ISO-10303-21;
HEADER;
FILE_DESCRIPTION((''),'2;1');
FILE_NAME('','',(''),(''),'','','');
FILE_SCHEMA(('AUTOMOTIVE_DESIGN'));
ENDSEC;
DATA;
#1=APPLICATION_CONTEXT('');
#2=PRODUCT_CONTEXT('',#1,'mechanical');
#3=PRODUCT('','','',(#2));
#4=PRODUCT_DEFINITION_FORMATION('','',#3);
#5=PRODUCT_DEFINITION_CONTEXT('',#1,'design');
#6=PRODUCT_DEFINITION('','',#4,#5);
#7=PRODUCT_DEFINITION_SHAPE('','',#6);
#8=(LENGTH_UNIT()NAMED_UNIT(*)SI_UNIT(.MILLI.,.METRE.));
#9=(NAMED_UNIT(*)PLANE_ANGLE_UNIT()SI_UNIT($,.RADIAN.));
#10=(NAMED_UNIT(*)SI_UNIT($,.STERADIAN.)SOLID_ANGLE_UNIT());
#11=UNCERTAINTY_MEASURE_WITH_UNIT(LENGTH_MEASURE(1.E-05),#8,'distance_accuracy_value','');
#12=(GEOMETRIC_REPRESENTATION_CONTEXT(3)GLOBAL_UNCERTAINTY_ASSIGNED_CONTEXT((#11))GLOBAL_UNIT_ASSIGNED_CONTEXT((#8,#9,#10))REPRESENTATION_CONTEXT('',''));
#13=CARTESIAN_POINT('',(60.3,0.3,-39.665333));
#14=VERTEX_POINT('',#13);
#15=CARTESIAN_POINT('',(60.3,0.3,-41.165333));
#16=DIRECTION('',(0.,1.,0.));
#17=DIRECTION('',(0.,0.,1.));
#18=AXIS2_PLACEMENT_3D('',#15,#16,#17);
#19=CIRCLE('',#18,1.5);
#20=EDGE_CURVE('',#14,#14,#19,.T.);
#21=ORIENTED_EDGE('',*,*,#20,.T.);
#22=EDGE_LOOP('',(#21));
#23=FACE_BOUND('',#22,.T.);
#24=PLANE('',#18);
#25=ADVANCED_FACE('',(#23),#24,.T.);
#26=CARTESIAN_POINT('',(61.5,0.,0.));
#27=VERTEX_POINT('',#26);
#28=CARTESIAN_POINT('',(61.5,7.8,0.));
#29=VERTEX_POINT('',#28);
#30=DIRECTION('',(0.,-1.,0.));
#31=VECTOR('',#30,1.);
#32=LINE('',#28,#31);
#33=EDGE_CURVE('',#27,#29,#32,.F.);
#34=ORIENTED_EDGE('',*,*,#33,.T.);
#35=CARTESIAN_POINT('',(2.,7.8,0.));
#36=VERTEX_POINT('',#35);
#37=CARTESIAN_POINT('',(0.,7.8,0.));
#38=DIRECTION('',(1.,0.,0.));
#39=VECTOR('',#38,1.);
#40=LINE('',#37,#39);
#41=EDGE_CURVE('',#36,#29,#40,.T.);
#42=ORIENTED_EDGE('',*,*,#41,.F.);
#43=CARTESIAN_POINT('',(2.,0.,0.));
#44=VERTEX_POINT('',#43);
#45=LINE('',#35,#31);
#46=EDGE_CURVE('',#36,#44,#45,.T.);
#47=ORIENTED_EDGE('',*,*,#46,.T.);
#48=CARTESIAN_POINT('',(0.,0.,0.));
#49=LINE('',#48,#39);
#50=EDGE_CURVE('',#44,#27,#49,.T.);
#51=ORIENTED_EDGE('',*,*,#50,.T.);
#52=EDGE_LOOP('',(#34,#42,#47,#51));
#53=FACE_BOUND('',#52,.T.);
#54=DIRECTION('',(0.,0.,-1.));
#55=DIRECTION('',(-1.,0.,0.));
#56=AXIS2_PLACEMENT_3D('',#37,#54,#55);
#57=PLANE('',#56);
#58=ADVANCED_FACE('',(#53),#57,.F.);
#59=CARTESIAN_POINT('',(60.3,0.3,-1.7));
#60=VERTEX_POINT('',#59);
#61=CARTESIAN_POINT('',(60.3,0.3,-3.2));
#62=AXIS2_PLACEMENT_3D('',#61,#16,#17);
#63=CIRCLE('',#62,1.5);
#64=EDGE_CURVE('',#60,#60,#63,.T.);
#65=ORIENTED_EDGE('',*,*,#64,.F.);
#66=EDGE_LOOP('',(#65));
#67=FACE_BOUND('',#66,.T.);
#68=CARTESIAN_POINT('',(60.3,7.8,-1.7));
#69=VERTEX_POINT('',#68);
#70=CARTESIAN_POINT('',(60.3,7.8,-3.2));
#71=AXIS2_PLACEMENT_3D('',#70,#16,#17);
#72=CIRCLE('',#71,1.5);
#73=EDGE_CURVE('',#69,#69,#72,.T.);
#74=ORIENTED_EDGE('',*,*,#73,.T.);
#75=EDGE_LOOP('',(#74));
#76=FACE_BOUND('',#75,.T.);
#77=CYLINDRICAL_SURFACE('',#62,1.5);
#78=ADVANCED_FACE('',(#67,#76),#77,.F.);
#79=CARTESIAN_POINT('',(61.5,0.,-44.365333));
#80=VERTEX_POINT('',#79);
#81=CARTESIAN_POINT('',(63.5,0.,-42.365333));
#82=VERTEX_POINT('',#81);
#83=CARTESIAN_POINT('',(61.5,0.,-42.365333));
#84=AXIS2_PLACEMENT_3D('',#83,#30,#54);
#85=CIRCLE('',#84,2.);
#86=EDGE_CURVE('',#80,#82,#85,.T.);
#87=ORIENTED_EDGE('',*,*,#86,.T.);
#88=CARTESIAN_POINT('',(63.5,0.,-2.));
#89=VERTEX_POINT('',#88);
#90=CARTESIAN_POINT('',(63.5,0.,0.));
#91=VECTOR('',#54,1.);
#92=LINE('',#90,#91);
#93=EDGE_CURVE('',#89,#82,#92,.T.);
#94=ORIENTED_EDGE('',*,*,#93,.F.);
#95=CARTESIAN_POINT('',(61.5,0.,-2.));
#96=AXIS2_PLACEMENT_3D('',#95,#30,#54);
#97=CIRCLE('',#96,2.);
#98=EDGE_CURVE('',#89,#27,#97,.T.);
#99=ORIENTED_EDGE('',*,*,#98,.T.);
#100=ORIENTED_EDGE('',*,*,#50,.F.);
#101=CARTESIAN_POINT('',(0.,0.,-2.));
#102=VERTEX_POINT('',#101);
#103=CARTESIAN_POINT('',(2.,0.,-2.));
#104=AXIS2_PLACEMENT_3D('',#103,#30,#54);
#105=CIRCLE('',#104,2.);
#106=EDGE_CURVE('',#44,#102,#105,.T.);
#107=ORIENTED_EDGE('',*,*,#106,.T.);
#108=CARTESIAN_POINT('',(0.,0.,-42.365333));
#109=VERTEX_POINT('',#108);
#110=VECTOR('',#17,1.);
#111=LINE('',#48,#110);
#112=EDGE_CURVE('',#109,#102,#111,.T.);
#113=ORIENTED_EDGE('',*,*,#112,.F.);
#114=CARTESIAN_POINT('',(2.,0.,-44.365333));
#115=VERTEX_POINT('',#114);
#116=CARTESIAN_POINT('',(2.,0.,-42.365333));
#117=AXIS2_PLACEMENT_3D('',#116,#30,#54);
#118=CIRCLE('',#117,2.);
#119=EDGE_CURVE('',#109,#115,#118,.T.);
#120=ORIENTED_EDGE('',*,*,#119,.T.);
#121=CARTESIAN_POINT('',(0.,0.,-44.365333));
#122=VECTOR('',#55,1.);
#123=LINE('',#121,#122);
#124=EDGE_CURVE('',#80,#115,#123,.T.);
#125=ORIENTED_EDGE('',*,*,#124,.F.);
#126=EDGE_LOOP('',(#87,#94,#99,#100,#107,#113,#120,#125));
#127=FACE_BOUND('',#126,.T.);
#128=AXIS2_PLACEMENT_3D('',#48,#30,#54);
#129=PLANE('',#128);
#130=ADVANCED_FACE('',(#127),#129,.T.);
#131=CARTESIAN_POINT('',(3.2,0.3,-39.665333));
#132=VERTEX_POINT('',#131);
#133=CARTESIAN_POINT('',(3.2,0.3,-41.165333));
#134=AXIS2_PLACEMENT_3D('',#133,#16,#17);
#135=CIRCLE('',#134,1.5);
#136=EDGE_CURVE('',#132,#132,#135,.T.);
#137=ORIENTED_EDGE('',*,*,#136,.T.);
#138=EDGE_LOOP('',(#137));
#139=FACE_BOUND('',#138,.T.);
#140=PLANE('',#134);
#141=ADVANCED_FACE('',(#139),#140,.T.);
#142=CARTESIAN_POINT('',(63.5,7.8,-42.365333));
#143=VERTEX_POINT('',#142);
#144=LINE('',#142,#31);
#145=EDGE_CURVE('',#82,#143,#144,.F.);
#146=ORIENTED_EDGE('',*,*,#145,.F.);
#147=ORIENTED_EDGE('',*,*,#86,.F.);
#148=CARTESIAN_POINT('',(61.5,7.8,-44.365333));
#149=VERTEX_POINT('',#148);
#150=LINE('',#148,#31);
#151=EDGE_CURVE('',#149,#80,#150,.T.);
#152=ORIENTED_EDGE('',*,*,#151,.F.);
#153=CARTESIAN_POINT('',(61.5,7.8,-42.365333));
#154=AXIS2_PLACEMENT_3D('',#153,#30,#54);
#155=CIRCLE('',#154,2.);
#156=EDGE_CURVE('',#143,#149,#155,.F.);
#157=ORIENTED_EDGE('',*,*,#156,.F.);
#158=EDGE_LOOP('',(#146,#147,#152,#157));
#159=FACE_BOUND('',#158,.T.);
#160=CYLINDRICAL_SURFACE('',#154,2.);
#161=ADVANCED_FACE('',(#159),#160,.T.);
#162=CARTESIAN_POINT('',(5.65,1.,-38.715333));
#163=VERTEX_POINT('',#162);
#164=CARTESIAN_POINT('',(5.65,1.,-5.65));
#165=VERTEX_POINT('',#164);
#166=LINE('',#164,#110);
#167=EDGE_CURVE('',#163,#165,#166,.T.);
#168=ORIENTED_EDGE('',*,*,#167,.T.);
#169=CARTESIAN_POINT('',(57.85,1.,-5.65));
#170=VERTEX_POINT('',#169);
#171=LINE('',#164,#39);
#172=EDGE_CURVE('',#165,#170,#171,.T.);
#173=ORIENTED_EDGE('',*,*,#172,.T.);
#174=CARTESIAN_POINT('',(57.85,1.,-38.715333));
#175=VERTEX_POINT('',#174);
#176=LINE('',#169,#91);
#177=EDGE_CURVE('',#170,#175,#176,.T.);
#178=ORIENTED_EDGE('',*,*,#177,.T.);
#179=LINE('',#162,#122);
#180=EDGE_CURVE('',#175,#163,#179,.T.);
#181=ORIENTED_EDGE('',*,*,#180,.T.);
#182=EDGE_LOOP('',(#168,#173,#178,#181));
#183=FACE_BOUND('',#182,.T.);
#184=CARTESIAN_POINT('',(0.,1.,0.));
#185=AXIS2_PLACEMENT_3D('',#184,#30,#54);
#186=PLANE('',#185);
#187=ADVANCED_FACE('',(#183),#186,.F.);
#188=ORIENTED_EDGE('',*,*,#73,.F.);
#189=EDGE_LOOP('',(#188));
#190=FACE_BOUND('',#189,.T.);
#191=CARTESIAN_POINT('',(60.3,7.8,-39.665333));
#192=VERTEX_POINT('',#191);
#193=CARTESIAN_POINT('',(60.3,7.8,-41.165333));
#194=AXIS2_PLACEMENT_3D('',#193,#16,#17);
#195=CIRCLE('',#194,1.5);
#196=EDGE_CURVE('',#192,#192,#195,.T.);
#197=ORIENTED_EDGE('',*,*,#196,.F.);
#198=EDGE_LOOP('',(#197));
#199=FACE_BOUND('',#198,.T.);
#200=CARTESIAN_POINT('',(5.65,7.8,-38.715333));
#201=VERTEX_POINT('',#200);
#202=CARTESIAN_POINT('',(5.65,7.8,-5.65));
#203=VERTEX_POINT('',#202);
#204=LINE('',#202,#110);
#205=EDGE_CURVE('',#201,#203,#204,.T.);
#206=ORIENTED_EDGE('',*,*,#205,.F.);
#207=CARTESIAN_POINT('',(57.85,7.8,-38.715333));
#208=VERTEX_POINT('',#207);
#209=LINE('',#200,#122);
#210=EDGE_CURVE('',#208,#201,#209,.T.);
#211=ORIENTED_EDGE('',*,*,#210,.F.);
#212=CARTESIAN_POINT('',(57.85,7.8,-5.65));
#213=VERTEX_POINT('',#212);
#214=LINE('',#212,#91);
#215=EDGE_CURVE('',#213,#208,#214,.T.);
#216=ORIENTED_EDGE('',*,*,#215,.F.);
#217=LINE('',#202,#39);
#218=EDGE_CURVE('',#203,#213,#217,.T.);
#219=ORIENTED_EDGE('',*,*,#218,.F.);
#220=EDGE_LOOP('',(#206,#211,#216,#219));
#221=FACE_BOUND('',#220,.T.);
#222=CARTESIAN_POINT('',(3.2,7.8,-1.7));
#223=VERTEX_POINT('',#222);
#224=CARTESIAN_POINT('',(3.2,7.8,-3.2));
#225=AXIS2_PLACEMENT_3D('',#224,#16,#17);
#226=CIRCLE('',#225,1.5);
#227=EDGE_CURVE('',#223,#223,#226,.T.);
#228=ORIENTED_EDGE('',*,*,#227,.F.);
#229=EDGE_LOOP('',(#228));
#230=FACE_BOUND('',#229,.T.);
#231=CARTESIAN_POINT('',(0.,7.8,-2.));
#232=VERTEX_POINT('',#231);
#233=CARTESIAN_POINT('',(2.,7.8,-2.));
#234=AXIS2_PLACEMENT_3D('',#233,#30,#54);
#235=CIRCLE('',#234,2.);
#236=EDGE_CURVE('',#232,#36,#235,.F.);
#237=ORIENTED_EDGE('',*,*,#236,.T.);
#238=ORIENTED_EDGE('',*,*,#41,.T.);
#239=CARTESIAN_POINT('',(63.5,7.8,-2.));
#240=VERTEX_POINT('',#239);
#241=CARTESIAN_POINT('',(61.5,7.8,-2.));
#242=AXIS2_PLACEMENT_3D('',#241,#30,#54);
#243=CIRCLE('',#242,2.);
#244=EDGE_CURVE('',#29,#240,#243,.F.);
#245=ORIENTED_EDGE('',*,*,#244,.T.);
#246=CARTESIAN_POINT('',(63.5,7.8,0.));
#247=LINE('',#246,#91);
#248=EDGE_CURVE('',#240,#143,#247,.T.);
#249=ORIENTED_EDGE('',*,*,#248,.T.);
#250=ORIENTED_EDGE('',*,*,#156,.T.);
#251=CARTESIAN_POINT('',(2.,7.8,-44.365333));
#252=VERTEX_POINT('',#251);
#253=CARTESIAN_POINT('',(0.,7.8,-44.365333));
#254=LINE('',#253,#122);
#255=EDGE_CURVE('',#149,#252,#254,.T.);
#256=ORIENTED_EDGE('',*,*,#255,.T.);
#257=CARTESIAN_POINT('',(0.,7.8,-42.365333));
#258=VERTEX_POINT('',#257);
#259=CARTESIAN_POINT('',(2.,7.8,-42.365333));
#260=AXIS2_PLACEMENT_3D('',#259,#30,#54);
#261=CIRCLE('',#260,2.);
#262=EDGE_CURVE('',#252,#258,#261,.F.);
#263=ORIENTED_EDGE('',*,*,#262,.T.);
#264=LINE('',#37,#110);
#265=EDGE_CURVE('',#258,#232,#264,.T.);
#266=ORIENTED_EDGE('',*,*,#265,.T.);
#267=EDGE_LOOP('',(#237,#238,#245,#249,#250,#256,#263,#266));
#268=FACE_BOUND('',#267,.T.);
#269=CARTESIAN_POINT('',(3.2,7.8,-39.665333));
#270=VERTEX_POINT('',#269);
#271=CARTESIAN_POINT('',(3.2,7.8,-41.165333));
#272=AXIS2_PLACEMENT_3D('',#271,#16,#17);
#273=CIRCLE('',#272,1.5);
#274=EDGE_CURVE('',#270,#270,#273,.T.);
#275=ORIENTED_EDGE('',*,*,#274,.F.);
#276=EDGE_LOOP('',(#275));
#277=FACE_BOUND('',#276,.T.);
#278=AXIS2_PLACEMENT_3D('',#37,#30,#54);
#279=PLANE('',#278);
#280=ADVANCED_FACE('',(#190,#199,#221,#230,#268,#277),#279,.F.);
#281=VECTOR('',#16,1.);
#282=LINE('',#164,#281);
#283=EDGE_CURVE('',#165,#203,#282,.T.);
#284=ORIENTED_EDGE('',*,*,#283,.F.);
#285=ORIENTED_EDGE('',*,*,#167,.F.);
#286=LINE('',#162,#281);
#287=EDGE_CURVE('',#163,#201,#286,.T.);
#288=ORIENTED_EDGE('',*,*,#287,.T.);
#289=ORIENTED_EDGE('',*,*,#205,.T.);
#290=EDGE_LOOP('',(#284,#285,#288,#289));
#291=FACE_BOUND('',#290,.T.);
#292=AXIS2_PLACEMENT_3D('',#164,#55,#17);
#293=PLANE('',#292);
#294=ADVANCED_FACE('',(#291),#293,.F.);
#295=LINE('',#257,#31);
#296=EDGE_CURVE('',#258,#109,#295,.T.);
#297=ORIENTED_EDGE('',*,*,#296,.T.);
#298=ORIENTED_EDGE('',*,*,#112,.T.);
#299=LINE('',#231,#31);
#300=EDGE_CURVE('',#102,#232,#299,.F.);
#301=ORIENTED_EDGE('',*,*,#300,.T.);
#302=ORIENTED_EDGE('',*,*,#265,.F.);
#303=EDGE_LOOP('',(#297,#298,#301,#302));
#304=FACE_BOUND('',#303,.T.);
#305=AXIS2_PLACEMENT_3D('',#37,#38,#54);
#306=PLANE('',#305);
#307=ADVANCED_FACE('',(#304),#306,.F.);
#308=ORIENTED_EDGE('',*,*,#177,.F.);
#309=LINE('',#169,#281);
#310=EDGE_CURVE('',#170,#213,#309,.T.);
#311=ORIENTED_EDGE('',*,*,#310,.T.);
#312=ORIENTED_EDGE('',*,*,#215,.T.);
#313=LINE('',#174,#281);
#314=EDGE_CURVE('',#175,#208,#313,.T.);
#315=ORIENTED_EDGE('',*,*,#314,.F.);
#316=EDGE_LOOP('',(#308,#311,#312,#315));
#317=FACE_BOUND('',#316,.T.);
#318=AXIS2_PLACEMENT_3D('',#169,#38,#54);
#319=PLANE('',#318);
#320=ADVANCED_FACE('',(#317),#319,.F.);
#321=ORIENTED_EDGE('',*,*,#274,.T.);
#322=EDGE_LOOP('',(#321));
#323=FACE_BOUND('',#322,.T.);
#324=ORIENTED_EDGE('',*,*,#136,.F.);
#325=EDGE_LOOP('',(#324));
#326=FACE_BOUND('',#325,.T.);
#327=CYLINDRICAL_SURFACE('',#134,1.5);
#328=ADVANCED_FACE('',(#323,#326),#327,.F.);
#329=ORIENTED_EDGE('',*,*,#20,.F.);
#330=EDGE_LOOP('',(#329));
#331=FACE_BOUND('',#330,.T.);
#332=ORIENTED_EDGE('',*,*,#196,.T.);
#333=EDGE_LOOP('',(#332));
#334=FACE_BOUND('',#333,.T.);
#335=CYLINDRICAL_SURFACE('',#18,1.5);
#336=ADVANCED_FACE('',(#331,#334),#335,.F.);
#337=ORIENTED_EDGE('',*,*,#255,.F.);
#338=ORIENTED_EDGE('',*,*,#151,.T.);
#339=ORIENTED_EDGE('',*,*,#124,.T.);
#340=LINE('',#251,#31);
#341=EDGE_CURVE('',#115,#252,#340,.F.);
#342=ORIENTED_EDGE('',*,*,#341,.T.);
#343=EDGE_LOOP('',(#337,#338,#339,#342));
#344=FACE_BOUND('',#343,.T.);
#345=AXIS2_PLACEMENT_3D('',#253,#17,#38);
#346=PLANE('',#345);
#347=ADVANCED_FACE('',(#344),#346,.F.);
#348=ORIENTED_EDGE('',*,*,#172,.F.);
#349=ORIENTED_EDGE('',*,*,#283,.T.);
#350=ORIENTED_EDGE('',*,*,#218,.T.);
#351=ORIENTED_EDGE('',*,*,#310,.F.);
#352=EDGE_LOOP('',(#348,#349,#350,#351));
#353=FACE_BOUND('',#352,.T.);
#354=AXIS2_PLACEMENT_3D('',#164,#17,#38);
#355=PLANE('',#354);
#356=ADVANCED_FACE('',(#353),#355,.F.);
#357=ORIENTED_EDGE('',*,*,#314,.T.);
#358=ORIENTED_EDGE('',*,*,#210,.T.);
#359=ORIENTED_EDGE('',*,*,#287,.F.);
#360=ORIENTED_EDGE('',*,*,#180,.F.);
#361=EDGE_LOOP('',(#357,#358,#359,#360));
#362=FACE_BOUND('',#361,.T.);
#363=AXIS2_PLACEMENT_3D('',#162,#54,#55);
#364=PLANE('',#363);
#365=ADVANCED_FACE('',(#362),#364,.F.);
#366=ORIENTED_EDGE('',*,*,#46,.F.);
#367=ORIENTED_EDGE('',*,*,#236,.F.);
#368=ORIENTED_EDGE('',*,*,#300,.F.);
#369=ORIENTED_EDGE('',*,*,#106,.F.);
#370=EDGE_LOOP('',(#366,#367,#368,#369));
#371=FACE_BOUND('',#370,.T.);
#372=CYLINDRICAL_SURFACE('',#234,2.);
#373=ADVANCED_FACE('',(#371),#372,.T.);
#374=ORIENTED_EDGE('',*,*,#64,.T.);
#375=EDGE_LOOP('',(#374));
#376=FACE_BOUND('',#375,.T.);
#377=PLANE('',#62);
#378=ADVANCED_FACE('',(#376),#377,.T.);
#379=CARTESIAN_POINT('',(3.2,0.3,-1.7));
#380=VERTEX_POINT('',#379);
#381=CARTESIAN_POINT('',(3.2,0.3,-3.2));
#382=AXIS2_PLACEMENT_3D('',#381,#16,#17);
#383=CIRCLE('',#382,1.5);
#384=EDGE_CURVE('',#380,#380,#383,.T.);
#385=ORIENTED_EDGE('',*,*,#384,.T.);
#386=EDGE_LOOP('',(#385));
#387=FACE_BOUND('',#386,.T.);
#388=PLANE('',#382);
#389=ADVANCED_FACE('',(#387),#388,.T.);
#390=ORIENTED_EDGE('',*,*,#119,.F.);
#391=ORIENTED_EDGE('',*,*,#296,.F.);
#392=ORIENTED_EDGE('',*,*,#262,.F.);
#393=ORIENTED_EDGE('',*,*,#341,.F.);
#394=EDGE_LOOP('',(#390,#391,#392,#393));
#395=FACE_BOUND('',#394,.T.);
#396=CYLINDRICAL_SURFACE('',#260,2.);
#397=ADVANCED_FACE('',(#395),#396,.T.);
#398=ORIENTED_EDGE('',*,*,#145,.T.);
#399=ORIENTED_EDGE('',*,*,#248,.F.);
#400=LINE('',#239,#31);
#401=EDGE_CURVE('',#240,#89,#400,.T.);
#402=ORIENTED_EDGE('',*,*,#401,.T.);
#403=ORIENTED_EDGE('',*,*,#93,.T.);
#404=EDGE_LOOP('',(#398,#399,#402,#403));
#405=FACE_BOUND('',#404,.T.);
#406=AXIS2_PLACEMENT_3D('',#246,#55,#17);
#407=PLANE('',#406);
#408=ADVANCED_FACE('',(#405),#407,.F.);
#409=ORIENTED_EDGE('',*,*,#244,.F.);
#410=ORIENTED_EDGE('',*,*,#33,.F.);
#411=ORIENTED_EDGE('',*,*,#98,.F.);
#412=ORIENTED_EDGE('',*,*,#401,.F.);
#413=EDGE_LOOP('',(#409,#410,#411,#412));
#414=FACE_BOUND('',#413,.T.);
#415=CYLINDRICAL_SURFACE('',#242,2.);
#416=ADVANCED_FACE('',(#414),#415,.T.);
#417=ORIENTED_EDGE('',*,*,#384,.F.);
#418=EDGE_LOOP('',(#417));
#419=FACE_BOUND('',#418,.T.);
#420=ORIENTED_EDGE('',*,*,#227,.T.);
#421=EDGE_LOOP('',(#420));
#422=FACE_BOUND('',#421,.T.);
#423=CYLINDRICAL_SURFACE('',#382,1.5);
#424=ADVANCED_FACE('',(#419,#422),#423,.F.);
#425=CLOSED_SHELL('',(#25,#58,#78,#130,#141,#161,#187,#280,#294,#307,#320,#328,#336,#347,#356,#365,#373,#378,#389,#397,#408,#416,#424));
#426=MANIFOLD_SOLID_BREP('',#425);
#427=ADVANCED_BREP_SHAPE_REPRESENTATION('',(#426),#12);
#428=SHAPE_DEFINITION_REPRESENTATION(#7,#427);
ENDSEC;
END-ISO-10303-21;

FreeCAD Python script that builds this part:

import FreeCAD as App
import Part
import Sketcher
from FreeCAD import Vector


def edges_at(feature, points):
    """Names of the edges that pass closest to the given points."""
    edges = feature.Shape.Edges
    near = lambda p: min(range(len(edges)), key=lambda i: edges[i].distToShape(Part.Vertex(*p))[0])
    return sorted({f"Edge{near(p) + 1}" for p in points})

doc = App.newDocument("Part")
body = doc.addObject("PartDesign::Body", "Body")

# Sketch on XZ plane
sketch1 = body.newObject("Sketcher::SketchObject", "Sketch")
sketch1.AttachmentSupport = (doc.getObject("XZ_Plane"), [""])
sketch1.MapMode = "FlatFace"
sketch1.addGeometry([
    Part.LineSegment(Vector(0, -44, 0), Vector(0, 0, 0)),
    Part.LineSegment(Vector(0, 0, 0), Vector(64, 0, 0)),
    Part.LineSegment(Vector(64, 0, 0), Vector(64, -44, 0)),
    Part.LineSegment(Vector(64, -44, 0), Vector(0, -44, 0)),
], False)
sketch1.addConstraint([
    Sketcher.Constraint("Coincident", 0, 2, 1, 1),
    Sketcher.Constraint("Coincident", 1, 2, 2, 1),
    Sketcher.Constraint("Coincident", 2, 2, 3, 1),
    Sketcher.Constraint("Coincident", 3, 2, 0, 1),
    Sketcher.Constraint("Vertical", 0),
    Sketcher.Constraint("Horizontal", 1),
    Sketcher.Constraint("Vertical", 2),
    Sketcher.Constraint("Horizontal", 3),
    Sketcher.Constraint("Coincident", 0, 2, -1, 1),
    Sketcher.Constraint("DistanceX", 1, 1, 1, 2, 63.5),
    Sketcher.Constraint("DistanceY", 0, 1, 0, 2, 44.365333),
])
pad1 = body.newObject("PartDesign::Pad", "Pad")
pad1.Profile = sketch1
pad1.Length = 7.8
pad1.Reversed = True

# Sketch on XZ plane
sketch2 = body.newObject("Sketcher::SketchObject", "Sketch001")
sketch2.AttachmentSupport = (doc.getObject("XZ_Plane"), [""])
sketch2.MapMode = "FlatFace"
sketch2.AttachmentOffset = App.Placement(Vector(0, 0, -7.8), App.Rotation())
sketch2.addGeometry([
    Part.LineSegment(Vector(6, -39, 0), Vector(6, -6, 0)),
    Part.LineSegment(Vector(6, -6, 0), Vector(58, -6, 0)),
    Part.LineSegment(Vector(58, -6, 0), Vector(58, -39, 0)),
    Part.LineSegment(Vector(58, -39, 0), Vector(6, -39, 0)),
], False)
sketch2.addConstraint([
    Sketcher.Constraint("Coincident", 0, 2, 1, 1),
    Sketcher.Constraint("Coincident", 1, 2, 2, 1),
    Sketcher.Constraint("Coincident", 2, 2, 3, 1),
    Sketcher.Constraint("Coincident", 3, 2, 0, 1),
    Sketcher.Constraint("Vertical", 0),
    Sketcher.Constraint("Horizontal", 1),
    Sketcher.Constraint("Vertical", 2),
    Sketcher.Constraint("Horizontal", 3),
    Sketcher.Constraint("DistanceX", 1, 1, 1, 2, 52.2),
    Sketcher.Constraint("DistanceX", -1, 1, 0, 2, 5.65),
    Sketcher.Constraint("DistanceY", 0, 2, -1, 1, 5.65),
    Sketcher.Constraint("DistanceY", 0, 1, 0, 2, 33.065333),
])
pocket1 = body.newObject("PartDesign::Pocket", "Pocket")
pocket1.Profile = sketch2
pocket1.Length = 6.8
pocket1.Reversed = True

# Sketch on XZ plane
sketch3 = body.newObject("Sketcher::SketchObject", "Sketch002")
sketch3.AttachmentSupport = (doc.getObject("XZ_Plane"), [""])
sketch3.MapMode = "FlatFace"
sketch3.AttachmentOffset = App.Placement(Vector(0, 0, -7.8), App.Rotation())
sketch3.addGeometry([
    Part.Circle(Vector(3.2, -3.2, 0), Vector(0, 0, 1), 1.5),
    Part.Circle(Vector(3.2, -41.2, 0), Vector(0, 0, 1), 1.5),
    Part.Circle(Vector(60.3, -41.2, 0), Vector(0, 0, 1), 1.5),
    Part.Circle(Vector(60.3, -3.2, 0), Vector(0, 0, 1), 1.5),
], False)
sketch3.addConstraint([
    Sketcher.Constraint("Equal", 0, 1),
    Sketcher.Constraint("Equal", 1, 2),
    Sketcher.Constraint("Equal", 2, 3),
    Sketcher.Constraint("Horizontal", 1, 3, 2, 3),
    Sketcher.Constraint("Horizontal", 0, 3, 3, 3),
    Sketcher.Constraint("Vertical", 0, 3, 1, 3),
    Sketcher.Constraint("Vertical", 2, 3, 3, 3),
    Sketcher.Constraint("Diameter", 0, 3.0),
    Sketcher.Constraint("DistanceX", -1, 1, 0, 3, 3.2),
    Sketcher.Constraint("DistanceY", 0, 3, -1, 1, 3.2),
    Sketcher.Constraint("DistanceX", -1, 1, 2, 3, 60.3),
    Sketcher.Constraint("DistanceY", 1, 3, -1, 1, 41.165333),
])
pocket2 = body.newObject("PartDesign::Pocket", "Pocket001")
pocket2.Profile = sketch3
pocket2.Length = 7.5
pocket2.Reversed = True
doc.recompute()

fillet = body.newObject("PartDesign::Fillet", "Fillet")
fillet.Base = (pocket2, edges_at(pocket2, [
    (0, 3.9, -44.365),
    (63.5, 3.9, -44.365),
    (63.5, 3.9, 0),
    (0, 3.9, 0),
]))
fillet.Radius = 2

doc.recompute()
